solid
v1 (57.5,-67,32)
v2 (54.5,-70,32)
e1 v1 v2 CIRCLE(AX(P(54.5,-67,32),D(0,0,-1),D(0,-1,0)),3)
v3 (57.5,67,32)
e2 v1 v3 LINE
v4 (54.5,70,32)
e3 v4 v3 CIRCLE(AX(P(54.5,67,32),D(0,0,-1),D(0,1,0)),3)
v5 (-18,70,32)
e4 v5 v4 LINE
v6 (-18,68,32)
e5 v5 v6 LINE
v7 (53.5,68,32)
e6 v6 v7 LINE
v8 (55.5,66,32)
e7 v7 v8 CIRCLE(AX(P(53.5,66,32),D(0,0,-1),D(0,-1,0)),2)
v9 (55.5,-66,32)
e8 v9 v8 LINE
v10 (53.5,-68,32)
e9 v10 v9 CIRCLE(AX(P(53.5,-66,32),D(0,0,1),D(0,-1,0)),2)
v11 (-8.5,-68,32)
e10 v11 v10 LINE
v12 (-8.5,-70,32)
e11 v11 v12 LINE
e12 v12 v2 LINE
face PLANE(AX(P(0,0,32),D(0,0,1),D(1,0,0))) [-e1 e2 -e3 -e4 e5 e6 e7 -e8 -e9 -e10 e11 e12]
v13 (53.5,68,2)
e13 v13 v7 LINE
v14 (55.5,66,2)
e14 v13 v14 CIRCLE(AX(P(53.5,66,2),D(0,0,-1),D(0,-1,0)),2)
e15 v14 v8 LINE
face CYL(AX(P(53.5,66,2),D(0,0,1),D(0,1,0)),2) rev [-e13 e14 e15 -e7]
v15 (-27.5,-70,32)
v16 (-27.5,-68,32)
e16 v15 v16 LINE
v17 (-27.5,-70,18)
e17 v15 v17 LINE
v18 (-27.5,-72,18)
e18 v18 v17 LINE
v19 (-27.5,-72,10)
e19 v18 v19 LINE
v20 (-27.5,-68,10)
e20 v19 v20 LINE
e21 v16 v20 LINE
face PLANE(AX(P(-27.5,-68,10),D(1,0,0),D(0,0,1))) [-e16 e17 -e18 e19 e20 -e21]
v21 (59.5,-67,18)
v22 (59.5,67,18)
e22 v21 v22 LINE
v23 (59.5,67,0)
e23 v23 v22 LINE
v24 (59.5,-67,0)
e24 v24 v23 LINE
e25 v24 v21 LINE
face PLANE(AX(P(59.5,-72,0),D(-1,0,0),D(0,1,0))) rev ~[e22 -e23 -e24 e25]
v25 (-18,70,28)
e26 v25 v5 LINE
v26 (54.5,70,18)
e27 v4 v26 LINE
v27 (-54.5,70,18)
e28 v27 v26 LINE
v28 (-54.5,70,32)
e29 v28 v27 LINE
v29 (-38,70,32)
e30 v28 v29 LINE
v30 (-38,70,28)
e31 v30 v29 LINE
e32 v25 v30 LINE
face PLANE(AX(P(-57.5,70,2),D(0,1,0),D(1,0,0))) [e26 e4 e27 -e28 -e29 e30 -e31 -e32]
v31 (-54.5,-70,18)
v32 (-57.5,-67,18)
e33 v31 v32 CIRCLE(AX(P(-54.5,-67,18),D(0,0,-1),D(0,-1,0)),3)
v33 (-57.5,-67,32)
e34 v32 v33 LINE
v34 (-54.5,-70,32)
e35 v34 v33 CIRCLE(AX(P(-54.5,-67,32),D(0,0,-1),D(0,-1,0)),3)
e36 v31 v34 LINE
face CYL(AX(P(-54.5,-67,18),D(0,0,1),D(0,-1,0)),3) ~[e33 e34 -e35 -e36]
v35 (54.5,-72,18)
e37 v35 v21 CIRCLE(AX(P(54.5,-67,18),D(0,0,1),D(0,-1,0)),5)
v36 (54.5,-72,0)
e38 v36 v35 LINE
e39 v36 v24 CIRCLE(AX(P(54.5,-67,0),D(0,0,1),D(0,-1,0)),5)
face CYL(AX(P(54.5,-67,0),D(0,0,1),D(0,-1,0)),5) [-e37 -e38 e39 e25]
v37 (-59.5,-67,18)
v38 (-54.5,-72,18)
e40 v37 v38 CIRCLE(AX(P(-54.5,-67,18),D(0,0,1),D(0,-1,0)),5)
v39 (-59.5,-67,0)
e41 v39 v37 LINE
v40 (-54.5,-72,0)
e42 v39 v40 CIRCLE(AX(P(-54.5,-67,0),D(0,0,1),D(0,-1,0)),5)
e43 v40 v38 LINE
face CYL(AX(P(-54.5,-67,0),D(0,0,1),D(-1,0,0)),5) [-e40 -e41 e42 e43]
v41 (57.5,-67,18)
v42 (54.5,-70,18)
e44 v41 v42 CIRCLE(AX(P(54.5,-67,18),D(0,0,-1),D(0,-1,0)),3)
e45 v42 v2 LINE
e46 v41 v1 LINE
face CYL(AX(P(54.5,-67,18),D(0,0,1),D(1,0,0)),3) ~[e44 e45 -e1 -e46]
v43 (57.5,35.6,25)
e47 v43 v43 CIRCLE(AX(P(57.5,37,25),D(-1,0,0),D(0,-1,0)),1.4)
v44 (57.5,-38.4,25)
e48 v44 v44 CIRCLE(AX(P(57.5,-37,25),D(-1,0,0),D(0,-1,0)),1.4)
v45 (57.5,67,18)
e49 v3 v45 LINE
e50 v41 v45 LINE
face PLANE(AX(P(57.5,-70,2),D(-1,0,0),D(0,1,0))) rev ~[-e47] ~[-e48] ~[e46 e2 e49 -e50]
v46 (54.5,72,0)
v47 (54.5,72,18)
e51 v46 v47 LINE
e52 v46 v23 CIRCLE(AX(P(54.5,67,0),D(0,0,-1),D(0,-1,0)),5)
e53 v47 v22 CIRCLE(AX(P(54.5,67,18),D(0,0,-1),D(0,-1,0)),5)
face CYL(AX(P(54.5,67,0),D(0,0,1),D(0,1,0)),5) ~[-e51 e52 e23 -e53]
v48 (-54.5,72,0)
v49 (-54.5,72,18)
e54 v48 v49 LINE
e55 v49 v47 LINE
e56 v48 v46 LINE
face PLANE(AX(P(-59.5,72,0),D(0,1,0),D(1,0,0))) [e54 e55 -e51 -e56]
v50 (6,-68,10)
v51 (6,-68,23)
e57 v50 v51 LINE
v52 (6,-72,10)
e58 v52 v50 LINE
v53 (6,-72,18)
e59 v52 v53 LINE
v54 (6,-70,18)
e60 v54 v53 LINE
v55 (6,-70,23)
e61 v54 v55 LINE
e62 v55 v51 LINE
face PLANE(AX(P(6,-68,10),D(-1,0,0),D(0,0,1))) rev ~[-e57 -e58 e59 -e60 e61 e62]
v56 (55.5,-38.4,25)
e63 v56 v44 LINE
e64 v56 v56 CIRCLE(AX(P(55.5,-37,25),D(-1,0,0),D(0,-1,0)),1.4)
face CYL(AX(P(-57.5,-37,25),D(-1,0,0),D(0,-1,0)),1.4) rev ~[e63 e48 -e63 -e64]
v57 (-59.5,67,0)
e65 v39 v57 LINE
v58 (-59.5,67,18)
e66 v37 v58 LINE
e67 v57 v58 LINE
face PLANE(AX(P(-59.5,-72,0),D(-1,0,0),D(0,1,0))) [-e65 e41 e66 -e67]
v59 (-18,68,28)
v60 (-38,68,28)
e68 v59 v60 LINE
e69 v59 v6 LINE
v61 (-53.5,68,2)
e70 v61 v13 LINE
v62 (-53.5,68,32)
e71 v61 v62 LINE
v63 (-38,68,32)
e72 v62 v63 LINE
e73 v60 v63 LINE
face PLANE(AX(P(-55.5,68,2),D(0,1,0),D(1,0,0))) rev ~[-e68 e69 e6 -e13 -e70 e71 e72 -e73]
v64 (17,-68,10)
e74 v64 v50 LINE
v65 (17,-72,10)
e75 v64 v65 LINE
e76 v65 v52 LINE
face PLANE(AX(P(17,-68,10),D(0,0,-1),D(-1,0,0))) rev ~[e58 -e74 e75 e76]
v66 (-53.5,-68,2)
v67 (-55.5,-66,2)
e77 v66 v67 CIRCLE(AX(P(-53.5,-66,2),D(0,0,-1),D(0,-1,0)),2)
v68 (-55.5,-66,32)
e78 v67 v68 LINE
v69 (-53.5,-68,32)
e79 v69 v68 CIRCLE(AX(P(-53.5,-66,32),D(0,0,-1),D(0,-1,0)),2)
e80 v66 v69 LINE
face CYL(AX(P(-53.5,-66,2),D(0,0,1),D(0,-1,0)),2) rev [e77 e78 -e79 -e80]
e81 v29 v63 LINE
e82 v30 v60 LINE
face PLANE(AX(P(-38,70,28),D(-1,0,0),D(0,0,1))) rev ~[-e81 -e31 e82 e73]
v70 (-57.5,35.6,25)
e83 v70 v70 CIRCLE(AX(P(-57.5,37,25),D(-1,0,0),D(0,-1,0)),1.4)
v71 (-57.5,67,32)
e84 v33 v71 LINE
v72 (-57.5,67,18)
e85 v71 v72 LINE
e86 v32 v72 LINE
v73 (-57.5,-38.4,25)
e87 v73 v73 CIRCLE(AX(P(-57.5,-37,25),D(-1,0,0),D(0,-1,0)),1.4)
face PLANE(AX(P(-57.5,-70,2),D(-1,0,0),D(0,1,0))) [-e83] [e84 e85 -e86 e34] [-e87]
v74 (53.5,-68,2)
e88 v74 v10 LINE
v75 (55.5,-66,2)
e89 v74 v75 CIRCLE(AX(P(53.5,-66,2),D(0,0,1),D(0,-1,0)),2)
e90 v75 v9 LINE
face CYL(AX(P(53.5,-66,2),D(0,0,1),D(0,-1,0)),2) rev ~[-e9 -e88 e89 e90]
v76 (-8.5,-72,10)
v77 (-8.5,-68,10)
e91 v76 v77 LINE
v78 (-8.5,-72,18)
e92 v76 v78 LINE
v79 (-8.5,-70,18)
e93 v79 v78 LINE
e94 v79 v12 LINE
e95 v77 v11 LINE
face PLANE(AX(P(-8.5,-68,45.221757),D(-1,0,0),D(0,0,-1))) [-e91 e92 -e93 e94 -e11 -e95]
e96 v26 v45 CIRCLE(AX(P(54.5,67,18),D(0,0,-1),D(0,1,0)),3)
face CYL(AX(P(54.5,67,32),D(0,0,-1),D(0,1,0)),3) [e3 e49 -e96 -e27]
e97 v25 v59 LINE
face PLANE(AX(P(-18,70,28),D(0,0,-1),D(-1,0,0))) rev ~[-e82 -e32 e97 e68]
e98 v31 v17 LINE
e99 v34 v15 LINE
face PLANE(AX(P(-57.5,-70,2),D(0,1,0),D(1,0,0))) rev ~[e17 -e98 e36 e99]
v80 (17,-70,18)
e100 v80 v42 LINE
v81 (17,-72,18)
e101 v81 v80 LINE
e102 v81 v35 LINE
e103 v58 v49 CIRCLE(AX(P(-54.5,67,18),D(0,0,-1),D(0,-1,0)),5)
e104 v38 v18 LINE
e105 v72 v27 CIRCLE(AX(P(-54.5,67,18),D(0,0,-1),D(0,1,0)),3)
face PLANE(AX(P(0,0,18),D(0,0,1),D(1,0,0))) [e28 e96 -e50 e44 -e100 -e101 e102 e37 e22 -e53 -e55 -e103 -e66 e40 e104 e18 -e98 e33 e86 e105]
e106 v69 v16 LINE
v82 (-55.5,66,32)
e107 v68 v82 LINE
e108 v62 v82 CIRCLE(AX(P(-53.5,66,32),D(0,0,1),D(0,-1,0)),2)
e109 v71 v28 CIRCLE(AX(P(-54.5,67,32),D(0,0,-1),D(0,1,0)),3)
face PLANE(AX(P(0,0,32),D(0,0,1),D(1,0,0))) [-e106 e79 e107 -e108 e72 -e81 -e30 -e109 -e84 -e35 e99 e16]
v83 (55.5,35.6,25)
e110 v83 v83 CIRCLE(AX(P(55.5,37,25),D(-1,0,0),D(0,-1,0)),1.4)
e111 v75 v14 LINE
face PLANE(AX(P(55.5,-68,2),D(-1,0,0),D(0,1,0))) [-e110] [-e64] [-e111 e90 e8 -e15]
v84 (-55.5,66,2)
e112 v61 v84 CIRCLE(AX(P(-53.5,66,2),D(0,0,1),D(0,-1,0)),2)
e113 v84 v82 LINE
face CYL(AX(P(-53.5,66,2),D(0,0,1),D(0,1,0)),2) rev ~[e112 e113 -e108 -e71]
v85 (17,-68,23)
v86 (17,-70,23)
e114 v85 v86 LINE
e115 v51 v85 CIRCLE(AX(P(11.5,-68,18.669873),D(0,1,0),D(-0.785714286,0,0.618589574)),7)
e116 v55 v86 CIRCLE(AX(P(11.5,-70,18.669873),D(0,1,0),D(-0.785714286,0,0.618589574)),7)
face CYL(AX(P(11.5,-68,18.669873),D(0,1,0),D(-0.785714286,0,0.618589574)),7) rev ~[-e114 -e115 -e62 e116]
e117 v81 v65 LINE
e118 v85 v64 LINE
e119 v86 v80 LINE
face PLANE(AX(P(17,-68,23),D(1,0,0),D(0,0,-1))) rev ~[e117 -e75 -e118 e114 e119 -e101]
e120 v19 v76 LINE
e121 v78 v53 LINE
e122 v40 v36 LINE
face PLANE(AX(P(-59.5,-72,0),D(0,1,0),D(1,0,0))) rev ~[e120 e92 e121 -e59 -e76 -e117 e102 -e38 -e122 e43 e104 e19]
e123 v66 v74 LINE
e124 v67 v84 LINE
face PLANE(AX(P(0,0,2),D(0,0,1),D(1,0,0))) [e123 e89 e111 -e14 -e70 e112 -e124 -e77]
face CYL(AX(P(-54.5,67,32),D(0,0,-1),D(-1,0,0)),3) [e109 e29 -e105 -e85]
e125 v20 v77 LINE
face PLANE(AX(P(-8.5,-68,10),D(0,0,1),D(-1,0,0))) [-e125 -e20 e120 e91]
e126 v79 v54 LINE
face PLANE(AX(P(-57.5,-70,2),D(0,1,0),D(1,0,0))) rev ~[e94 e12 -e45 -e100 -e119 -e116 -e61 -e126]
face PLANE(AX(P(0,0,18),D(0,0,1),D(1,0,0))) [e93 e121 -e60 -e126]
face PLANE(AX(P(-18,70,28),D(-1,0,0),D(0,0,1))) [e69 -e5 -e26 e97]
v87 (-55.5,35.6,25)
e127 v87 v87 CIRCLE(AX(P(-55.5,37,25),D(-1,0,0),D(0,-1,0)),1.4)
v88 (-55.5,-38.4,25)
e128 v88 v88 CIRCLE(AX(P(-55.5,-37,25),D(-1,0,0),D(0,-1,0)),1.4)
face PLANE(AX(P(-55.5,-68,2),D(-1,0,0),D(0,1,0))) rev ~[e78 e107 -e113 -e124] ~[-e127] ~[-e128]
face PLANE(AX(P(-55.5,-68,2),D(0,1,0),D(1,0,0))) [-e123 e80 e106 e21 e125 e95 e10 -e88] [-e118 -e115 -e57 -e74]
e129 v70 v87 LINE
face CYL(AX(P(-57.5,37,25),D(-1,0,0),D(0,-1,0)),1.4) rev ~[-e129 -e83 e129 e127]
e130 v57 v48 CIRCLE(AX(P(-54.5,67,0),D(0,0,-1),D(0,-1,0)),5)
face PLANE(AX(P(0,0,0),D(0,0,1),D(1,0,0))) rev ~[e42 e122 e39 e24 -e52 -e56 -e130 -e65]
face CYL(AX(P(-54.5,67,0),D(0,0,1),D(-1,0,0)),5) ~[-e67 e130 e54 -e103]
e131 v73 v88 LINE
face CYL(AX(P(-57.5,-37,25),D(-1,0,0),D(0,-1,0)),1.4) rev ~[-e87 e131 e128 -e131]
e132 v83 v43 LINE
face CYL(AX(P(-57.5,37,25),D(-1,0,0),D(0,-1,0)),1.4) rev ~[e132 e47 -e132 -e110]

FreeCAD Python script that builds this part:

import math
import FreeCAD as App
import Part
import Sketcher


def edges_at(feature, points):
    """Names of the edges that pass closest to the given points."""
    edges = feature.Shape.Edges
    near = lambda p: min(range(len(edges)), key=lambda i: edges[i].distToShape(Part.Vertex(*p))[0])
    return sorted({f"Edge{near(p) + 1}" for p in points})

doc = App.newDocument("Part")
params = doc.addObject("Spreadsheet::Sheet", "Params")
for row, (alias, value) in enumerate([
    ("sketch1_width", "115 mm"),
    ("sketch1_height", "140 mm"),
    ("pad1_length", "2 mm"),
    ("sketch2_width", "115 mm"),
    ("sketch2_width2", "111 mm"),
    ("sketch2_height", "140 mm"),
    ("sketch2_height2", "136 mm"),
    ("pad2_length", "30 mm"),
    ("sketch3_width", "119 mm"),
    ("sketch3_width2", "115 mm"),
    ("sketch3_height", "144 mm"),
    ("sketch3_height2", "140 mm"),
    ("pad3_length", "18 mm"),
    ("sketch4_radius", "7 mm"),
    ("sketch4_width", "19 mm"),
    ("sketch4_width2", "11 mm"),
    ("sketch4_height", "13 mm"),
    ("pocket1_length", "10 mm"),
    ("sketch5_width", "20 mm"),
    ("sketch5_height", "11 mm"),
    ("pocket2_length", "2 mm"),
    ("fillet_radius", "5 mm"),
    ("fillet2_radius", "3 mm"),
    ("fillet3_radius", "2 mm"),
    ("sketch6_diameter", "2.8 mm"),
], start=1):
    params.set(f"A{row}", alias)
    params.set(f"B{row}", "=" + value)
    params.setAlias(f"B{row}", alias)

body = doc.addObject("PartDesign::Body", "Body")

# Sketch on XY plane
sketch1 = body.newObject("Sketcher::SketchObject", "Sketch")
sketch1.AttachmentSupport = (doc.getObject("XY_Plane"), [""])
sketch1.MapMode = "FlatFace"
sketch1.addGeometry([
    Part.LineSegment(App.Vector(-58, 70, 0), App.Vector(-58, -70, 0)),
    Part.LineSegment(App.Vector(-58, -70, 0), App.Vector(58, -70, 0)),
    Part.LineSegment(App.Vector(58, -70, 0), App.Vector(58, 70, 0)),
    Part.LineSegment(App.Vector(58, 70, 0), App.Vector(-58, 70, 0)),
], False)
sketch1.addConstraint([
    Sketcher.Constraint("Coincident", 0, 2, 1, 1),
    Sketcher.Constraint("Coincident", 1, 2, 2, 1),
    Sketcher.Constraint("Coincident", 2, 2, 3, 1),
    Sketcher.Constraint("Coincident", 3, 2, 0, 1),
    Sketcher.Constraint("Vertical", 0),
    Sketcher.Constraint("Horizontal", 1),
    Sketcher.Constraint("Vertical", 2),
    Sketcher.Constraint("Horizontal", 3),
    Sketcher.Constraint("Symmetric", 0, 2, 2, 2, -1, 1),
    Sketcher.Constraint("DistanceX", 1, 1, 1, 2, 115.0),
    Sketcher.Constraint("DistanceY", 0, 2, 0, 1, 140.0),
])
sketch1.setExpression("Constraints[9]", "Params.sketch1_width")
sketch1.setExpression("Constraints[10]", "Params.sketch1_height")
pad1 = body.newObject("PartDesign::Pad", "Pad")
pad1.Profile = sketch1
pad1.setExpression("Length", "Params.pad1_length")

# Sketch on XY plane
sketch2 = body.newObject("Sketcher::SketchObject", "Sketch001")
sketch2.AttachmentSupport = (doc.getObject("XY_Plane"), [""])
sketch2.MapMode = "FlatFace"
sketch2.AttachmentOffset = App.Placement(App.Vector(0, 0, 2), App.Rotation())
sketch2.addGeometry([
    Part.LineSegment(App.Vector(-58, 70, 0), App.Vector(-58, -70, 0)),  # 0
    Part.LineSegment(App.Vector(-58, -70, 0), App.Vector(58, -70, 0)),  # 1
    Part.LineSegment(App.Vector(58, -70, 0), App.Vector(58, 70, 0)),  # 2
    Part.LineSegment(App.Vector(58, 70, 0), App.Vector(-58, 70, 0)),  # 3
    Part.LineSegment(App.Vector(56, -68, 0), App.Vector(-56, -68, 0)),  # 4
    Part.LineSegment(App.Vector(-56, -68, 0), App.Vector(-56, 68, 0)),  # 5
    Part.LineSegment(App.Vector(-56, 68, 0), App.Vector(56, 68, 0)),  # 6
    Part.LineSegment(App.Vector(56, 68, 0), App.Vector(56, -68, 0)),  # 7
], False)
sketch2.addConstraint([
    Sketcher.Constraint("Coincident", 0, 2, 1, 1),
    Sketcher.Constraint("Coincident", 1, 2, 2, 1),
    Sketcher.Constraint("Coincident", 2, 2, 3, 1),
    Sketcher.Constraint("Coincident", 3, 2, 0, 1),
    Sketcher.Constraint("Coincident", 4, 2, 5, 1),
    Sketcher.Constraint("Coincident", 5, 2, 6, 1),
    Sketcher.Constraint("Coincident", 6, 2, 7, 1),
    Sketcher.Constraint("Coincident", 7, 2, 4, 1),
    Sketcher.Constraint("Vertical", 0),
    Sketcher.Constraint("Horizontal", 1),
    Sketcher.Constraint("Vertical", 2),
    Sketcher.Constraint("Horizontal", 3),
    Sketcher.Constraint("Horizontal", 4),
    Sketcher.Constraint("Vertical", 5),
    Sketcher.Constraint("Horizontal", 6),
    Sketcher.Constraint("Vertical", 7),
    Sketcher.Constraint("Symmetric", 0, 2, 2, 2, -1, 1),
    Sketcher.Constraint("Symmetric", 4, 2, 6, 2, -1, 1),
    Sketcher.Constraint("DistanceX", 1, 1, 1, 2, 115.0),
    Sketcher.Constraint("DistanceX", 4, 2, 4, 1, 111.0),
    Sketcher.Constraint("DistanceY", 0, 2, 0, 1, 140.0),
    Sketcher.Constraint("DistanceY", 5, 1, 5, 2, 136.0),
])
sketch2.setExpression("Constraints[18]", "Params.sketch2_width")
sketch2.setExpression("Constraints[19]", "Params.sketch2_width2")
sketch2.setExpression("Constraints[20]", "Params.sketch2_height")
sketch2.setExpression("Constraints[21]", "Params.sketch2_height2")
pad2 = body.newObject("PartDesign::Pad", "Pad001")
pad2.Profile = sketch2
pad2.setExpression("Length", "Params.pad2_length")

# Sketch on XY plane
sketch3 = body.newObject("Sketcher::SketchObject", "Sketch002")
sketch3.AttachmentSupport = (doc.getObject("XY_Plane"), [""])
sketch3.MapMode = "FlatFace"
sketch3.addGeometry([
    Part.LineSegment(App.Vector(-60, 72, 0), App.Vector(-60, -72, 0)),  # 0
    Part.LineSegment(App.Vector(-60, -72, 0), App.Vector(60, -72, 0)),  # 1
    Part.LineSegment(App.Vector(60, -72, 0), App.Vector(60, 72, 0)),  # 2
    Part.LineSegment(App.Vector(60, 72, 0), App.Vector(-60, 72, 0)),  # 3
    Part.LineSegment(App.Vector(58, -70, 0), App.Vector(-58, -70, 0)),  # 4
    Part.LineSegment(App.Vector(-58, -70, 0), App.Vector(-58, 70, 0)),  # 5
    Part.LineSegment(App.Vector(-58, 70, 0), App.Vector(58, 70, 0)),  # 6
    Part.LineSegment(App.Vector(58, 70, 0), App.Vector(58, -70, 0)),  # 7
], False)
sketch3.addConstraint([
    Sketcher.Constraint("Coincident", 0, 2, 1, 1),
    Sketcher.Constraint("Coincident", 1, 2, 2, 1),
    Sketcher.Constraint("Coincident", 2, 2, 3, 1),
    Sketcher.Constraint("Coincident", 3, 2, 0, 1),
    Sketcher.Constraint("Coincident", 4, 2, 5, 1),
    Sketcher.Constraint("Coincident", 5, 2, 6, 1),
    Sketcher.Constraint("Coincident", 6, 2, 7, 1),
    Sketcher.Constraint("Coincident", 7, 2, 4, 1),
    Sketcher.Constraint("Vertical", 0),
    Sketcher.Constraint("Horizontal", 1),
    Sketcher.Constraint("Vertical", 2),
    Sketcher.Constraint("Horizontal", 3),
    Sketcher.Constraint("Horizontal", 4),
    Sketcher.Constraint("Vertical", 5),
    Sketcher.Constraint("Horizontal", 6),
    Sketcher.Constraint("Vertical", 7),
    Sketcher.Constraint("Symmetric", 0, 2, 2, 2, -1, 1),
    Sketcher.Constraint("Symmetric", 4, 2, 6, 2, -1, 1),
    Sketcher.Constraint("DistanceX", 1, 1, 1, 2, 119.0),
    Sketcher.Constraint("DistanceX", 4, 2, 4, 1, 115.0),
    Sketcher.Constraint("DistanceY", 0, 2, 0, 1, 144.0),
    Sketcher.Constraint("DistanceY", 5, 1, 5, 2, 140.0),
])
sketch3.setExpression("Constraints[18]", "Params.sketch3_width")
sketch3.setExpression("Constraints[19]", "Params.sketch3_width2")
sketch3.setExpression("Constraints[20]", "Params.sketch3_height")
sketch3.setExpression("Constraints[21]", "Params.sketch3_height2")
pad3 = body.newObject("PartDesign::Pad", "Pad002")
pad3.Profile = sketch3
pad3.setExpression("Length", "Params.pad3_length")

# Sketch on XZ plane
sketch4 = body.newObject("Sketcher::SketchObject", "Sketch003")
sketch4.AttachmentSupport = (doc.getObject("XZ_Plane"), [""])
sketch4.MapMode = "FlatFace"
sketch4.AttachmentOffset = App.Placement(App.Vector(0, 0, 68), App.Rotation())
sketch4.addGeometry([
    Part.LineSegment(App.Vector(-8, 45, 0), App.Vector(-8, 10, 0)),  # 0
    Part.LineSegment(App.Vector(-8, 10, 0), App.Vector(-28, 10, 0)),  # 1
    Part.LineSegment(App.Vector(-28, 10, 0), App.Vector(-28, 45, 0)),  # 2
    Part.LineSegment(App.Vector(-28, 45, 0), App.Vector(-8, 45, 0)),  # 3
    Part.LineSegment(App.Vector(17, 10, 0), App.Vector(6, 10, 0)),  # 4
    Part.LineSegment(App.Vector(6, 10, 0), App.Vector(6, 23, 0)),  # 5
    Part.ArcOfCircle(Part.Circle(App.Vector(12, 19, 0), App.Vector(0, 0, 1), 7), math.radians(38), math.radians(142)),  # 6
    Part.LineSegment(App.Vector(17, 23, 0), App.Vector(17, 10, 0)),  # 7
], False)
sketch4.addConstraint([
    Sketcher.Constraint("Coincident", 0, 2, 1, 1),
    Sketcher.Constraint("Coincident", 1, 2, 2, 1),
    Sketcher.Constraint("Coincident", 2, 2, 3, 1),
    Sketcher.Constraint("Coincident", 3, 2, 0, 1),
    Sketcher.Constraint("Coincident", 4, 2, 5, 1),
    Sketcher.Constraint("Coincident", 5, 2, 6, 2),
    Sketcher.Constraint("Coincident", 6, 1, 7, 1),
    Sketcher.Constraint("Coincident", 7, 2, 4, 1),
    Sketcher.Constraint("Vertical", 0),
    Sketcher.Constraint("Horizontal", 1),
    Sketcher.Constraint("Vertical", 2),
    Sketcher.Constraint("Horizontal", 3),
    Sketcher.Constraint("Horizontal", 4),
    Sketcher.Constraint("Vertical", 5),
    Sketcher.Constraint("Vertical", 7),
    Sketcher.Constraint("Horizontal", 1, 2, 4, 2),
    Sketcher.Constraint("Horizontal", 5, 2, 6, 1),
    Sketcher.Constraint("Radius", 6, 7.0),
    Sketcher.Constraint("DistanceX", 1, 2, 1, 1, 19.0),
    Sketcher.Constraint("DistanceX", 4, 2, 4, 1, 11.0),
    Sketcher.Constraint("DistanceY", 5, 1, 5, 2, 13.0),
    Sketcher.Constraint("DistanceY", -1, 1, 0, 2, 10.0),
    Sketcher.Constraint("DistanceX", -1, 1, 4, 2, 6.0),
    Sketcher.Constraint("DistanceX", 0, 2, 6, 3, 20.0),
    Sketcher.Constraint("DistanceY", 0, 2, 0, 1, 35.221757),
])
sketch4.setExpression("Constraints[17]", "Params.sketch4_radius")
sketch4.setExpression("Constraints[18]", "Params.sketch4_width")
sketch4.setExpression("Constraints[19]", "Params.sketch4_width2")
sketch4.setExpression("Constraints[20]", "Params.sketch4_height")
pocket1 = body.newObject("PartDesign::Pocket", "Pocket")
pocket1.Profile = sketch4
pocket1.setExpression("Length", "Params.pocket1_length")
pocket1.Midplane = True

# Sketch on XZ plane
sketch5 = body.newObject("Sketcher::SketchObject", "Sketch004")
sketch5.AttachmentSupport = (doc.getObject("XZ_Plane"), [""])
sketch5.MapMode = "FlatFace"
sketch5.AttachmentOffset = App.Placement(App.Vector(0, 0, -70), App.Rotation())
sketch5.addGeometry([
    Part.LineSegment(App.Vector(-18, 39, 0), App.Vector(-18, 28, 0)),
    Part.LineSegment(App.Vector(-18, 28, 0), App.Vector(-38, 28, 0)),
    Part.LineSegment(App.Vector(-38, 28, 0), App.Vector(-38, 39, 0)),
    Part.LineSegment(App.Vector(-38, 39, 0), App.Vector(-18, 39, 0)),
], False)
sketch5.addConstraint([
    Sketcher.Constraint("Coincident", 0, 2, 1, 1),
    Sketcher.Constraint("Coincident", 1, 2, 2, 1),
    Sketcher.Constraint("Coincident", 2, 2, 3, 1),
    Sketcher.Constraint("Coincident", 3, 2, 0, 1),
    Sketcher.Constraint("Vertical", 0),
    Sketcher.Constraint("Horizontal", 1),
    Sketcher.Constraint("Vertical", 2),
    Sketcher.Constraint("Horizontal", 3),
    Sketcher.Constraint("DistanceX", 1, 2, 1, 1, 20.0),
    Sketcher.Constraint("DistanceY", 0, 2, 0, 1, 11.0),
    Sketcher.Constraint("DistanceX", 0, 2, -1, 1, 18.0),
    Sketcher.Constraint("DistanceY", -1, 1, 0, 2, 28.0),
])
sketch5.setExpression("Constraints[8]", "Params.sketch5_width")
sketch5.setExpression("Constraints[9]", "Params.sketch5_height")
pocket2 = body.newObject("PartDesign::Pocket", "Pocket001")
pocket2.Profile = sketch5
pocket2.setExpression("Length", "Params.pocket2_length")
pocket2.Reversed = True
doc.recompute()

fillet = body.newObject("PartDesign::Fillet", "Fillet")
fillet.Base = (pocket2, edges_at(pocket2, [
    (-59.5, -72, 9),
    (59.5, -72, 9),
    (-59.5, 72, 9),
    (59.5, 72, 9),
]))
fillet.setExpression("Radius", "Params.fillet_radius")
doc.recompute()

fillet2 = body.newObject("PartDesign::Fillet", "Fillet001")
fillet2.Base = (fillet, edges_at(fillet, [
    (-57.5, -70, 25),
    (57.5, -70, 25),
    (57.5, 70, 25),
    (-57.5, 70, 25),
]))
fillet2.setExpression("Radius", "Params.fillet2_radius")
doc.recompute()

fillet3 = body.newObject("PartDesign::Fillet", "Fillet002")
fillet3.Base = (fillet2, edges_at(fillet2, [
    (-55.5, -68, 17),
    (55.5, -68, 17),
    (55.5, 68, 17),
    (-55.5, 68, 17),
]))
fillet3.setExpression("Radius", "Params.fillet3_radius")

# Sketch on YZ plane
sketch6 = body.newObject("Sketcher::SketchObject", "Sketch005")
sketch6.AttachmentSupport = (doc.getObject("YZ_Plane"), [""])
sketch6.MapMode = "FlatFace"
sketch6.AttachmentOffset = App.Placement(App.Vector(0, 0, -57.5), App.Rotation())
sketch6.addGeometry([
    Part.Circle(App.Vector(37, 25, 0), App.Vector(0, 0, 1), 1.4),
    Part.Circle(App.Vector(-37, 25, 0), App.Vector(0, 0, 1), 1.4),
], False)
sketch6.addConstraint([
    Sketcher.Constraint("Equal", 0, 1),
    Sketcher.Constraint("Symmetric", 0, 3, 1, 3, -2),
    Sketcher.Constraint("Diameter", 0, 2.8),
    Sketcher.Constraint("DistanceX", -1, 1, 0, 3, 37.0),
    Sketcher.Constraint("DistanceY", -1, 1, 0, 3, 25.0),
])
sketch6.setExpression("Constraints[2]", "Params.sketch6_diameter")
pocket3 = body.newObject("PartDesign::Pocket", "Pocket002")
pocket3.Profile = sketch6
pocket3.Type = "ThroughAll"
pocket3.Reversed = True

doc.recompute()
